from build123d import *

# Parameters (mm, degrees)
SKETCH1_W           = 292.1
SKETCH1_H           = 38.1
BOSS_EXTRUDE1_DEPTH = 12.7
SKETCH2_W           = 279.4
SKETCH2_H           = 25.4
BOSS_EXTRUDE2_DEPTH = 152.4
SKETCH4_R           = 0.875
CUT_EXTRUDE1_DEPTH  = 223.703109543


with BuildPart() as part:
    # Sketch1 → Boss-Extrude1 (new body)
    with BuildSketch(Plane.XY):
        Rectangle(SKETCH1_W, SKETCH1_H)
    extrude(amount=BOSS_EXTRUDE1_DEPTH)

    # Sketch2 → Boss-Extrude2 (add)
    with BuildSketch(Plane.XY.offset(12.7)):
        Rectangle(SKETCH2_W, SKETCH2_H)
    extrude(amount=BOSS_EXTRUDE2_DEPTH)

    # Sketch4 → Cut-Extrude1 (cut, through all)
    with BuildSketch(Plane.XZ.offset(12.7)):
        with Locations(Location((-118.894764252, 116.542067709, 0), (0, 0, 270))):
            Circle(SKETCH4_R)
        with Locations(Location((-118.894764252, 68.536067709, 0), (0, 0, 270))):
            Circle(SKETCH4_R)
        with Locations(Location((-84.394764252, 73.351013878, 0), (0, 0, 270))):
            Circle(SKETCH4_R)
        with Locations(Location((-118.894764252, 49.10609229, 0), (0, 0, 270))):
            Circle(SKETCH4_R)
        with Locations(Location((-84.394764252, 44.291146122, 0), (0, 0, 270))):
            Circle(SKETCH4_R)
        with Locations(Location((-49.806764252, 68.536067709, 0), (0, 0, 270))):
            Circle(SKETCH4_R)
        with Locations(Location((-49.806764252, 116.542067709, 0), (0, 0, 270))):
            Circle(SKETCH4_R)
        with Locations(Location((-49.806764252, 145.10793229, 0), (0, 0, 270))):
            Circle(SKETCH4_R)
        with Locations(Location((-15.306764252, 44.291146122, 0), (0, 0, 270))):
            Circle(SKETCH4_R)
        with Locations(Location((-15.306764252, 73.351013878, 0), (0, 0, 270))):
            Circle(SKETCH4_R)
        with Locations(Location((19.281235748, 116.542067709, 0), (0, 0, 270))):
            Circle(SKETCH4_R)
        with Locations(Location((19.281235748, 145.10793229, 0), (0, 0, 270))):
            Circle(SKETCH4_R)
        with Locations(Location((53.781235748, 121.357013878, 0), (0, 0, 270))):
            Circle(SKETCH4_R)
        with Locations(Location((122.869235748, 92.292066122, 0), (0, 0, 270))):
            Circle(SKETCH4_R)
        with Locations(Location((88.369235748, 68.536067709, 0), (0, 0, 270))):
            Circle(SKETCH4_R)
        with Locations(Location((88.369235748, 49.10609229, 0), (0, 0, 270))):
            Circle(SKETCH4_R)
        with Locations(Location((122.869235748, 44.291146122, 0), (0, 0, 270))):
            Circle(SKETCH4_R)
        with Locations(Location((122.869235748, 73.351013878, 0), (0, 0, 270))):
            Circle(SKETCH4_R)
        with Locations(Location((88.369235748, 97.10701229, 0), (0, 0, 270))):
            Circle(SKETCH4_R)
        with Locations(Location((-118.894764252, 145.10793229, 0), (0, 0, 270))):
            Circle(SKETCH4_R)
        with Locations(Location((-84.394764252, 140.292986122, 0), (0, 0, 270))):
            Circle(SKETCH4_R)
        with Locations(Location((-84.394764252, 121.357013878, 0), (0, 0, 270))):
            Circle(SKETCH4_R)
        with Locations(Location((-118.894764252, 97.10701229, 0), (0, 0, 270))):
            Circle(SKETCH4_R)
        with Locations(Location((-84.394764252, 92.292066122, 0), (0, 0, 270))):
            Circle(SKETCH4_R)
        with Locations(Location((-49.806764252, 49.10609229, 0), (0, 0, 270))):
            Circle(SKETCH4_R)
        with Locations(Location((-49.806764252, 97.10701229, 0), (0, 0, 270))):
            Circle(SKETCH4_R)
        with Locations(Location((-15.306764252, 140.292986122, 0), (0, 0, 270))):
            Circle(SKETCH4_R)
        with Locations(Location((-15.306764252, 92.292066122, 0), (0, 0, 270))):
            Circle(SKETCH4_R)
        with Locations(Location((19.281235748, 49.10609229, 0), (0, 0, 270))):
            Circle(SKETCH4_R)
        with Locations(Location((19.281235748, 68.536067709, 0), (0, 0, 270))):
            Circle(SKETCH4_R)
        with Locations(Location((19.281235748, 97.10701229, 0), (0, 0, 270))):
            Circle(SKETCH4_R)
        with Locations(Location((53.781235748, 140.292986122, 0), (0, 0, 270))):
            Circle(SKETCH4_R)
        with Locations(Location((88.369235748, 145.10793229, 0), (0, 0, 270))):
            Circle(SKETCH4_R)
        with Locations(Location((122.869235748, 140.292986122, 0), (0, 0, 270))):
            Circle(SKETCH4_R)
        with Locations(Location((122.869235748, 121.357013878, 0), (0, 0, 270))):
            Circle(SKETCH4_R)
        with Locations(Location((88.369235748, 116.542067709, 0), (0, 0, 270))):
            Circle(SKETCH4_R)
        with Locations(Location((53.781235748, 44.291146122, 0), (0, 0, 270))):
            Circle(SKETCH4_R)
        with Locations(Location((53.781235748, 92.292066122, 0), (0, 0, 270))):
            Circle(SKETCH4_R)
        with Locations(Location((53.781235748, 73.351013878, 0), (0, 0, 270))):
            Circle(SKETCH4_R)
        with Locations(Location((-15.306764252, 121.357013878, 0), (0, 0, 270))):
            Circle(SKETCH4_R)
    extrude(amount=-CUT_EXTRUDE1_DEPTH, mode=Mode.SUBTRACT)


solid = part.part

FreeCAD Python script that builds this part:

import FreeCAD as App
import Part
import Sketcher
Q = App.Units.Quantity


def add_polygon(sketch, points):
    """Adds a closed chain of lines whose ends are joined by coincident constraints."""
    first, n = sketch.GeometryCount, len(points)
    for a, b in zip(points, points[1:] + points[:1]):
        sketch.addGeometry(Part.LineSegment(App.Vector(*a, 0), App.Vector(*b, 0)), False)
    for i in range(n):
        sketch.addConstraint(Sketcher.Constraint("Coincident", first + i, 2, first + (i + 1) % n, 1))

doc = App.newDocument("Part")
body = doc.addObject("PartDesign::Body", "Body")

sketch1 = body.newObject("Sketcher::SketchObject", "Sketch")
sketch1.AttachmentSupport = (doc.getObject("XY_Plane"), [""])
sketch1.MapMode = "FlatFace"
add_polygon(sketch1, [(-146.05, 19.05), (-146.05, -19.05), (146.05, -19.05), (146.05, 19.05)])
sketch1.addConstraint([
    Sketcher.Constraint("Vertical", 0),
    Sketcher.Constraint("Horizontal", 1),
    Sketcher.Constraint("Vertical", 2),
    Sketcher.Constraint("Horizontal", 3),
    Sketcher.Constraint("Symmetric", 0, 2, 2, 2, -1, 1),
    Sketcher.Constraint("DistanceX", 1, 1, 1, 2, Q("11.5 in")),
    Sketcher.Constraint("DistanceY", 0, 2, 0, 1, Q("1.5 in")),
])
pad1 = body.newObject("PartDesign::Pad", "Pad")
pad1.Profile = sketch1
pad1.Length = Q("0.5 in")

sketch2 = body.newObject("Sketcher::SketchObject", "Sketch001")
sketch2.AttachmentSupport = (doc.getObject("XY_Plane"), [""])
sketch2.MapMode = "FlatFace"
sketch2.AttachmentOffset = App.Placement(App.Vector(0, 0, 0.5 * 25.4), App.Rotation())
add_polygon(sketch2, [(-139.7, 12.7), (-139.7, -12.7), (139.7, -12.7), (139.7, 12.7)])
sketch2.addConstraint([
    Sketcher.Constraint("Vertical", 0),
    Sketcher.Constraint("Horizontal", 1),
    Sketcher.Constraint("Vertical", 2),
    Sketcher.Constraint("Horizontal", 3),
    Sketcher.Constraint("Symmetric", 0, 2, 2, 2, -1, 1),
    Sketcher.Constraint("DistanceX", 1, 1, 1, 2, Q("11 in")),
    Sketcher.Constraint("DistanceY", 0, 2, 0, 1, Q("1 in")),
])
pad2 = body.newObject("PartDesign::Pad", "Pad001")
pad2.Profile = sketch2
pad2.Length = Q("6 in")

sketch3 = body.newObject("Sketcher::SketchObject", "Sketch002")
sketch3.AttachmentSupport = (doc.getObject("XZ_Plane"), [""])
sketch3.MapMode = "FlatFace"
sketch3.AttachmentOffset = App.Placement(App.Vector(0, 0, 0.5 * 25.4), App.Rotation())
sketch3.addGeometry([
    Part.Circle(App.Vector(-118.894764, 116.542068, 0), App.Vector(0, 0, 1), 0.875),
    Part.Circle(App.Vector(-118.894764, 68.536068, 0), App.Vector(0, 0, 1), 0.875),
    Part.Circle(App.Vector(-84.394764, 73.351014, 0), App.Vector(0, 0, 1), 0.875),
    Part.Circle(App.Vector(-118.894764, 49.106092, 0), App.Vector(0, 0, 1), 0.875),
    Part.Circle(App.Vector(-84.394764, 44.291146, 0), App.Vector(0, 0, 1), 0.875),
    Part.Circle(App.Vector(-49.806764, 68.536068, 0), App.Vector(0, 0, 1), 0.875),
    Part.Circle(App.Vector(-49.806764, 116.542068, 0), App.Vector(0, 0, 1), 0.875),
    Part.Circle(App.Vector(-49.806764, 145.107932, 0), App.Vector(0, 0, 1), 0.875),
    Part.Circle(App.Vector(-15.306764, 44.291146, 0), App.Vector(0, 0, 1), 0.875),
    Part.Circle(App.Vector(-15.306764, 73.351014, 0), App.Vector(0, 0, 1), 0.875),
    Part.Circle(App.Vector(19.281236, 116.542068, 0), App.Vector(0, 0, 1), 0.875),
    Part.Circle(App.Vector(19.281236, 145.107932, 0), App.Vector(0, 0, 1), 0.875),
    Part.Circle(App.Vector(53.781236, 121.357014, 0), App.Vector(0, 0, 1), 0.875),
    Part.Circle(App.Vector(122.869236, 92.292066, 0), App.Vector(0, 0, 1), 0.875),
    Part.Circle(App.Vector(88.369236, 68.536068, 0), App.Vector(0, 0, 1), 0.875),
    Part.Circle(App.Vector(88.369236, 49.106092, 0), App.Vector(0, 0, 1), 0.875),
    Part.Circle(App.Vector(122.869236, 44.291146, 0), App.Vector(0, 0, 1), 0.875),
    Part.Circle(App.Vector(122.869236, 73.351014, 0), App.Vector(0, 0, 1), 0.875),
    Part.Circle(App.Vector(88.369236, 97.107012, 0), App.Vector(0, 0, 1), 0.875),
    Part.Circle(App.Vector(-118.894764, 145.107932, 0), App.Vector(0, 0, 1), 0.875),
    Part.Circle(App.Vector(-84.394764, 140.292986, 0), App.Vector(0, 0, 1), 0.875),
    Part.Circle(App.Vector(-84.394764, 121.357014, 0), App.Vector(0, 0, 1), 0.875),
    Part.Circle(App.Vector(-118.894764, 97.107012, 0), App.Vector(0, 0, 1), 0.875),
    Part.Circle(App.Vector(-84.394764, 92.292066, 0), App.Vector(0, 0, 1), 0.875),
    Part.Circle(App.Vector(-49.806764, 49.106092, 0), App.Vector(0, 0, 1), 0.875),
    Part.Circle(App.Vector(-49.806764, 97.107012, 0), App.Vector(0, 0, 1), 0.875),
    Part.Circle(App.Vector(-15.306764, 140.292986, 0), App.Vector(0, 0, 1), 0.875),
    Part.Circle(App.Vector(-15.306764, 92.292066, 0), App.Vector(0, 0, 1), 0.875),
    Part.Circle(App.Vector(19.281236, 49.106092, 0), App.Vector(0, 0, 1), 0.875),
    Part.Circle(App.Vector(19.281236, 68.536068, 0), App.Vector(0, 0, 1), 0.875),
    Part.Circle(App.Vector(19.281236, 97.107012, 0), App.Vector(0, 0, 1), 0.875),
    Part.Circle(App.Vector(53.781236, 140.292986, 0), App.Vector(0, 0, 1), 0.875),
    Part.Circle(App.Vector(88.369236, 145.107932, 0), App.Vector(0, 0, 1), 0.875),
    Part.Circle(App.Vector(122.869236, 140.292986, 0), App.Vector(0, 0, 1), 0.875),
    Part.Circle(App.Vector(122.869236, 121.357014, 0), App.Vector(0, 0, 1), 0.875),
    Part.Circle(App.Vector(88.369236, 116.542068, 0), App.Vector(0, 0, 1), 0.875),
    Part.Circle(App.Vector(53.781236, 44.291146, 0), App.Vector(0, 0, 1), 0.875),
    Part.Circle(App.Vector(53.781236, 92.292066, 0), App.Vector(0, 0, 1), 0.875),
    Part.Circle(App.Vector(53.781236, 73.351014, 0), App.Vector(0, 0, 1), 0.875),
    Part.Circle(App.Vector(-15.306764, 121.357014, 0), App.Vector(0, 0, 1), 0.875),
], False)
sketch3.addConstraint([
    Sketcher.Constraint("Equal", 0, 1),
    Sketcher.Constraint("Equal", 1, 2),
    Sketcher.Constraint("Equal", 2, 3),
    Sketcher.Constraint("Equal", 3, 4),
    Sketcher.Constraint("Equal", 4, 5),
    Sketcher.Constraint("Equal", 5, 6),
    Sketcher.Constraint("Equal", 6, 7),
    Sketcher.Constraint("Equal", 7, 8),
    Sketcher.Constraint("Equal", 8, 9),
    Sketcher.Constraint("Equal", 9, 10),
    Sketcher.Constraint("Equal", 10, 11),
    Sketcher.Constraint("Equal", 11, 12),
    Sketcher.Constraint("Equal", 12, 13),
    Sketcher.Constraint("Equal", 13, 14),
    Sketcher.Constraint("Equal", 14, 15),
    Sketcher.Constraint("Equal", 15, 16),
    Sketcher.Constraint("Equal", 16, 17),
    Sketcher.Constraint("Equal", 17, 18),
    Sketcher.Constraint("Equal", 18, 19),
    Sketcher.Constraint("Equal", 19, 20),
    Sketcher.Constraint("Equal", 20, 21),
    Sketcher.Constraint("Equal", 21, 22),
    Sketcher.Constraint("Equal", 22, 23),
    Sketcher.Constraint("Equal", 23, 24),
    Sketcher.Constraint("Equal", 24, 25),
    Sketcher.Constraint("Equal", 25, 26),
    Sketcher.Constraint("Equal", 26, 27),
    Sketcher.Constraint("Equal", 27, 28),
    Sketcher.Constraint("Equal", 28, 29),
    Sketcher.Constraint("Equal", 29, 30),
    Sketcher.Constraint("Equal", 30, 31),
    Sketcher.Constraint("Equal", 31, 32),
    Sketcher.Constraint("Equal", 32, 33),
    Sketcher.Constraint("Equal", 33, 34),
    Sketcher.Constraint("Equal", 34, 35),
    Sketcher.Constraint("Equal", 35, 36),
    Sketcher.Constraint("Equal", 36, 37),
    Sketcher.Constraint("Equal", 37, 38),
    Sketcher.Constraint("Equal", 38, 39),
    Sketcher.Constraint("Horizontal", 1, 3, 5, 3),
    Sketcher.Constraint("Horizontal", 0, 3, 6, 3),
    Sketcher.Constraint("Horizontal", 4, 3, 8, 3),
    Sketcher.Constraint("Horizontal", 2, 3, 9, 3),
    Sketcher.Constraint("Horizontal", 6, 3, 10, 3),
    Sketcher.Constraint("Horizontal", 7, 3, 11, 3),
    Sketcher.Constraint("Horizontal", 5, 3, 14, 3),
    Sketcher.Constraint("Horizontal", 3, 3, 15, 3),
    Sketcher.Constraint("Horizontal", 8, 3, 16, 3),
    Sketcher.Constraint("Horizontal", 9, 3, 17, 3),
    Sketcher.Constraint("Horizontal", 11, 3, 19, 3),
    Sketcher.Constraint("Horizontal", 12, 3, 21, 3),
    Sketcher.Constraint("Horizontal", 18, 3, 22, 3),
    Sketcher.Constraint("Horizontal", 13, 3, 23, 3),
    Sketcher.Constraint("Horizontal", 15, 3, 24, 3),
    Sketcher.Constraint("Horizontal", 22, 3, 25, 3),
    Sketcher.Constraint("Horizontal", 20, 3, 26, 3),
    Sketcher.Constraint("Horizontal", 23, 3, 27, 3),
    Sketcher.Constraint("Horizontal", 24, 3, 28, 3),
    Sketcher.Constraint("Horizontal", 14, 3, 29, 3),
    Sketcher.Constraint("Horizontal", 25, 3, 30, 3),
    Sketcher.Constraint("Horizontal", 26, 3, 31, 3),
    Sketcher.Constraint("Horizontal", 19, 3, 32, 3),
    Sketcher.Constraint("Horizontal", 31, 3, 33, 3),
    Sketcher.Constraint("Horizontal", 21, 3, 34, 3),
    Sketcher.Constraint("Horizontal", 10, 3, 35, 3),
    Sketcher.Constraint("Horizontal", 16, 3, 36, 3),
    Sketcher.Constraint("Horizontal", 27, 3, 37, 3),
    Sketcher.Constraint("Horizontal", 17, 3, 38, 3),
    Sketcher.Constraint("Horizontal", 34, 3, 39, 3),
    Sketcher.Constraint("Vertical", 0, 3, 1, 3),
    Sketcher.Constraint("Vertical", 1, 3, 3, 3),
    Sketcher.Constraint("Vertical", 2, 3, 4, 3),
    Sketcher.Constraint("Vertical", 5, 3, 6, 3),
    Sketcher.Constraint("Vertical", 6, 3, 7, 3),
    Sketcher.Constraint("Vertical", 8, 3, 9, 3),
    Sketcher.Constraint("Vertical", 10, 3, 11, 3),
    Sketcher.Constraint("Vertical", 14, 3, 15, 3),
    Sketcher.Constraint("Vertical", 13, 3, 16, 3),
    Sketcher.Constraint("Vertical", 16, 3, 17, 3),
    Sketcher.Constraint("Vertical", 15, 3, 18, 3),
    Sketcher.Constraint("Vertical", 3, 3, 19, 3),
    Sketcher.Constraint("Vertical", 4, 3, 20, 3),
    Sketcher.Constraint("Vertical", 20, 3, 21, 3),
    Sketcher.Constraint("Vertical", 19, 3, 22, 3),
    Sketcher.Constraint("Vertical", 21, 3, 23, 3),
    Sketcher.Constraint("Vertical", 7, 3, 24, 3),
    Sketcher.Constraint("Vertical", 24, 3, 25, 3),
    Sketcher.Constraint("Vertical", 9, 3, 26, 3),
    Sketcher.Constraint("Vertical", 26, 3, 27, 3),
    Sketcher.Constraint("Vertical", 11, 3, 28, 3),
    Sketcher.Constraint("Vertical", 28, 3, 29, 3),
    Sketcher.Constraint("Vertical", 29, 3, 30, 3),
    Sketcher.Constraint("Vertical", 12, 3, 31, 3),
    Sketcher.Constraint("Vertical", 18, 3, 32, 3),
    Sketcher.Constraint("Vertical", 17, 3, 33, 3),
    Sketcher.Constraint("Vertical", 33, 3, 34, 3),
    Sketcher.Constraint("Vertical", 32, 3, 35, 3),
    Sketcher.Constraint("Vertical", 31, 3, 36, 3),
    Sketcher.Constraint("Vertical", 36, 3, 37, 3),
    Sketcher.Constraint("Vertical", 37, 3, 38, 3),
    Sketcher.Constraint("Vertical", 27, 3, 39, 3),
    Sketcher.Constraint("Diameter", 0, 1.75),
    Sketcher.Constraint("DistanceY", 1, 3, 0, 3, Q("1.89 in")),
    Sketcher.Constraint("DistanceX", 1, 3, 5, 3, Q("2.72 in")),
    Sketcher.Constraint("DistanceX", 4, 3, 8, 3, Q("2.72 in")),
    Sketcher.Constraint("DistanceX", 6, 3, 10, 3, Q("2.72 in")),
    Sketcher.Constraint("DistanceX", 9, 3, 12, 3, Q("2.72 in")),
    Sketcher.Constraint("DistanceY", 9, 3, 12, 3, Q("1.89 in")),
    Sketcher.Constraint("DistanceX", 12, 3, 13, 3, Q("2.72 in")),
    Sketcher.Constraint("DistanceX", 10, 3, 14, 3, Q("2.72 in")),
    Sketcher.Constraint("DistanceY", 8, 3, 13, 3, Q("1.8898 in")),
    Sketcher.Constraint("DistanceY", 15, 3, 18, 3, Q("1.8898 in")),
    Sketcher.Constraint("DistanceY", 18, 3, 32, 3, Q("1.8898 in")),
    Sketcher.Constraint("DistanceY", 13, 3, 33, 3, Q("1.8898 in")),
    Sketcher.Constraint("DistanceX", 1, 3, 2, 3, 34.5),
    Sketcher.Constraint("DistanceY", 13, 3, 10, 3, 24.250002),
    Sketcher.Constraint("DistanceY", 17, 3, 18, 3, 23.755998),
    Sketcher.Constraint("DistanceX", 0, 3, -1, 1, 118.894764),
    Sketcher.Constraint("DistanceY", -1, 1, 0, 3, 116.542068),
    Sketcher.Constraint("DistanceY", -1, 1, 2, 3, 73.351014),
])
pocket1 = body.newObject("PartDesign::Pocket", "Pocket")
pocket1.Profile = sketch3
pocket1.Type = "ThroughAll"

doc.recompute()
